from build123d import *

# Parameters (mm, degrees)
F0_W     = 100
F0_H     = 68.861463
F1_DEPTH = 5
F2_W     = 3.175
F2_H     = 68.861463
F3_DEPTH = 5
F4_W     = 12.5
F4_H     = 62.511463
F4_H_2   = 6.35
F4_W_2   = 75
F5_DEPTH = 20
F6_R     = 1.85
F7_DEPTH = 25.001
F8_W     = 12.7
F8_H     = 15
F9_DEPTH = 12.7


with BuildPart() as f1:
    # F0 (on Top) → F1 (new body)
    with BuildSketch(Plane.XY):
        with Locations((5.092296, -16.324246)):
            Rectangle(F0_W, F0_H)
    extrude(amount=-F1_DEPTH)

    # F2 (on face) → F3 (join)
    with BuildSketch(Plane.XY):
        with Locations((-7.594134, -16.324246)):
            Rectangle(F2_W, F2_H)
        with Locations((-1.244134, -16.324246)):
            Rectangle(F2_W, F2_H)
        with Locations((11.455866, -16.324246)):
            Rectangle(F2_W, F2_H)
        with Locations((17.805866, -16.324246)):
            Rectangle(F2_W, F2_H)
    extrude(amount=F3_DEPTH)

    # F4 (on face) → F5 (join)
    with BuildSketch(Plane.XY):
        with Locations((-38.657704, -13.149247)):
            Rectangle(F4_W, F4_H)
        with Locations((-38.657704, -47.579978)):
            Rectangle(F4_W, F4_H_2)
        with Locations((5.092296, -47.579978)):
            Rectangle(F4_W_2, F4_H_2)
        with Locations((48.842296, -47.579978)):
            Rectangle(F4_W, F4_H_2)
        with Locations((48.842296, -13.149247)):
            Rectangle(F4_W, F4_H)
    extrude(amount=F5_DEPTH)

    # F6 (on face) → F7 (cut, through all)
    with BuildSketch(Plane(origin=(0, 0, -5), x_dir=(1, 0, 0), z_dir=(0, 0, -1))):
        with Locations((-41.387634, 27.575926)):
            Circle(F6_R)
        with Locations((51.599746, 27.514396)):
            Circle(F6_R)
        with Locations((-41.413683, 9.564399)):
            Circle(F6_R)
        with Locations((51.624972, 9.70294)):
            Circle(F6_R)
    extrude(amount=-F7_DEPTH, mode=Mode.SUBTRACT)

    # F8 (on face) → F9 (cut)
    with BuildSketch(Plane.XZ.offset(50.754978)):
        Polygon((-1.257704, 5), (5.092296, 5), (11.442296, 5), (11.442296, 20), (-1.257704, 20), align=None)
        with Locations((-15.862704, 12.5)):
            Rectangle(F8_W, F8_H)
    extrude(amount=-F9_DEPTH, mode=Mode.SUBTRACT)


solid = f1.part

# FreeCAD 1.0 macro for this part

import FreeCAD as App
import Part
import Sketcher

V = App.Vector
Q = App.Units.Quantity


def add_polygon(sketch, points):
    """Adds a closed chain of lines whose ends are joined by coincident constraints."""
    first, n = sketch.GeometryCount, len(points)
    for a, b in zip(points, points[1:] + points[:1]):
        sketch.addGeometry(Part.LineSegment(App.Vector(*a, 0), App.Vector(*b, 0)), False)
    for i in range(n):
        sketch.addConstraint(Sketcher.Constraint("Coincident", first + i, 2, first + (i + 1) % n, 1))

doc = App.newDocument("Part")
params = doc.addObject("Spreadsheet::Sheet", "Params")
for row, (alias, value) in enumerate([
    ("sketch1_width", "100 mm"),
    ("pad1_length", "5 mm"),
    ("pad2_length", "5 mm"),
    ("sketch3_width", "100 mm"),
    ("sketch3_width2", "75 mm"),
    ("pad3_length", "20 mm"),
    ("sketch4_diameter", "3.7 mm"),
    ("sketch5_height", "15 mm"),
    ("sketch5_width", "12.7 mm"),
    ("pocket2_length", "12.7 mm"),
], start=1):
    params.set(f"A{row}", alias)
    params.set(f"B{row}", "=" + value)
    params.setAlias(f"B{row}", alias)

body = doc.addObject("PartDesign::Body", "Body")

# Sketch on XY plane
sketch1 = doc.addObject("Sketcher::SketchObject", "Sketch")
body.addObject(sketch1)
sketch1.AttachmentSupport = (doc.XY_Plane, [""])
sketch1.MapMode = "FlatFace"
add_polygon(sketch1, [(-45, 18), (-45, -51), (55, -51), (55, 18)])  # lines 0-3
sketch1.addConstraint([
    Sketcher.Constraint("Vertical", 0),
    Sketcher.Constraint("Horizontal", 1),
    Sketcher.Constraint("Vertical", 2),
    Sketcher.Constraint("Horizontal", 3),
    Sketcher.Constraint("DistanceX", 1, 1, 1, 2, Q("100 mm")),
    Sketcher.Constraint("DistanceY", 0, 2, 0, 1, Q("68.861463 mm")),
    Sketcher.Constraint("DistanceX", 0, 2, -1, 1, Q("44.907704 mm")),
    Sketcher.Constraint("DistanceY", 0, 2, -1, 1, Q("50.754978 mm")),
])
sketch1.setExpression("Constraints[8]", "Params.sketch1_width")
pad1 = doc.addObject("PartDesign::Pad", "Pad")
body.addObject(pad1)
pad1.Profile = sketch1
pad1.setExpression("Length", "Params.pad1_length")
pad1.Reversed = True

# Sketch on XY plane
sketch2 = doc.addObject("Sketcher::SketchObject", "Sketch001")
body.addObject(sketch2)
sketch2.AttachmentSupport = (doc.XY_Plane, [""])
sketch2.MapMode = "FlatFace"
add_polygon(sketch2, [(-9.2, 18.1), (-9.2, -50.8), (-6, -50.8), (-6, 18.1)])  # lines 0-3
add_polygon(sketch2, [(-2.8, 18.1), (-2.8, -50.8), (0.3, -50.8), (0.3, 18.1)])  # lines 4-7
add_polygon(sketch2, [(9.9, 18.1), (9.9, -50.8), (13, -50.8), (13, 18.1)])  # lines 8-11
add_polygon(sketch2, [(16.2, 18.1), (16.2, -50.8), (19.4, -50.8), (19.4, 18.1)])  # lines 12-15
sketch2.addConstraint([
    Sketcher.Constraint("Vertical", 0),
    Sketcher.Constraint("Horizontal", 1),
    Sketcher.Constraint("Vertical", 2),
    Sketcher.Constraint("Horizontal", 3),
    Sketcher.Constraint("Vertical", 4),
    Sketcher.Constraint("Horizontal", 5),
    Sketcher.Constraint("Vertical", 6),
    Sketcher.Constraint("Horizontal", 7),
    Sketcher.Constraint("Vertical", 8),
    Sketcher.Constraint("Horizontal", 9),
    Sketcher.Constraint("Vertical", 10),
    Sketcher.Constraint("Horizontal", 11),
    Sketcher.Constraint("Vertical", 12),
    Sketcher.Constraint("Horizontal", 13),
    Sketcher.Constraint("Vertical", 14),
    Sketcher.Constraint("Horizontal", 15),
    Sketcher.Constraint("Horizontal", 1, 2, 4, 2),
    Sketcher.Constraint("Horizontal", 3, 2, 6, 2),
    Sketcher.Constraint("Horizontal", 5, 2, 8, 2),
    Sketcher.Constraint("Horizontal", 7, 2, 10, 2),
    Sketcher.Constraint("Horizontal", 9, 2, 12, 2),
    Sketcher.Constraint("Horizontal", 11, 2, 14, 2),
    Sketcher.Constraint("Equal", 3, 5),
    Sketcher.Constraint("Equal", 7, 9),
    Sketcher.Constraint("Equal", 11, 13),
    Sketcher.Constraint("DistanceX", 4, 2, 8, 2, Q("12.7 mm")),
    Sketcher.Constraint("DistanceX", 2, 2, 14, 2, Q("25.4 mm")),
    Sketcher.Constraint("DistanceX", 1, 1, 1, 2, Q("3.175 mm")),
    Sketcher.Constraint("DistanceX", 0, 2, 4, 2, Q("6.35 mm")),
    Sketcher.Constraint("DistanceY", 0, 2, 0, 1, Q("68.861463 mm")),
    Sketcher.Constraint("DistanceX", 0, 2, -1, 1, Q("9.181634 mm")),
    Sketcher.Constraint("DistanceY", 0, 2, -1, 1, Q("50.754978 mm")),
])
pad2 = doc.addObject("PartDesign::Pad", "Pad001")
body.addObject(pad2)
pad2.Profile = sketch2
pad2.setExpression("Length", "Params.pad2_length")

# Sketch on XY plane
sketch3 = doc.addObject("Sketcher::SketchObject", "Sketch002")
body.addObject(sketch3)
sketch3.AttachmentSupport = (doc.XY_Plane, [""])
sketch3.MapMode = "FlatFace"
add_polygon(sketch3, [(-45, 18), (-45, -51), (55, -51), (55, 18), (43, 18), (43, -44), (-32, -44), (-32, 18)])  # lines 0-7
sketch3.addConstraint([
    Sketcher.Constraint("Vertical", 0),
    Sketcher.Constraint("Horizontal", 1),
    Sketcher.Constraint("Vertical", 2),
    Sketcher.Constraint("Horizontal", 3),
    Sketcher.Constraint("Vertical", 4),
    Sketcher.Constraint("Horizontal", 5),
    Sketcher.Constraint("Vertical", 6),
    Sketcher.Constraint("Horizontal", 7),
    Sketcher.Constraint("Horizontal", 3, 2, 6, 2),
    Sketcher.Constraint("Equal", 3, 7),
    Sketcher.Constraint("DistanceX", 1, 1, 1, 2, Q("100 mm")),
    Sketcher.Constraint("DistanceX", 5, 2, 5, 1, Q("75 mm")),
    Sketcher.Constraint("DistanceY", 1, 2, 4, 2, Q("6.35 mm")),
    Sketcher.Constraint("DistanceY", 0, 2, 0, 1, Q("68.861463 mm")),
    Sketcher.Constraint("DistanceX", 0, 2, -1, 1, Q("44.907704 mm")),
    Sketcher.Constraint("DistanceY", 0, 2, -1, 1, Q("50.754978 mm")),
])
sketch3.setExpression("Constraints[18]", "Params.sketch3_width")
sketch3.setExpression("Constraints[19]", "Params.sketch3_width2")
pad3 = doc.addObject("PartDesign::Pad", "Pad002")
body.addObject(pad3)
pad3.Profile = sketch3
pad3.setExpression("Length", "Params.pad3_length")

# Sketch on XY plane
sketch4 = doc.addObject("Sketcher::SketchObject", "Sketch003")
body.addObject(sketch4)
sketch4.AttachmentSupport = (doc.XY_Plane, [""])
sketch4.MapMode = "FlatFace"
sketch4.AttachmentOffset = App.Placement(V(0, 0, -5), App.Rotation())
sketch4.addGeometry([
    Part.Circle(V(-41.4, -27.6, 0), V(0, 0, 1), 1.9),
    Part.Circle(V(51.6, -27.5, 0), V(0, 0, 1), 1.9),
    Part.Circle(V(-41.4, -9.6, 0), V(0, 0, 1), 1.9),
    Part.Circle(V(51.6, -9.7, 0), V(0, 0, 1), 1.9),
], False)
sketch4.addConstraint([
    Sketcher.Constraint("Equal", 0, 1),
    Sketcher.Constraint("Equal", 1, 2),
    Sketcher.Constraint("Equal", 2, 3),
    Sketcher.Constraint("Diameter", 0, Q("3.7 mm")),
    Sketcher.Constraint("DistanceY", 2, 3, -1, 1, Q("9.564399 mm")),
    Sketcher.Constraint("DistanceY", 3, 3, -1, 1, Q("9.70294 mm")),
    Sketcher.Constraint("DistanceX", 0, 3, 1, 3, Q("92.98738 mm")),
    Sketcher.Constraint("DistanceY", 0, 3, 1, 3, Q("0.06153 mm")),
    Sketcher.Constraint("DistanceX", 2, 3, 0, 3, Q("0.026049 mm")),
    Sketcher.Constraint("DistanceX", 0, 3, -1, 1, Q("41.387634 mm")),
    Sketcher.Constraint("DistanceY", 0, 3, -1, 1, Q("27.575926 mm")),
    Sketcher.Constraint("DistanceX", -1, 1, 3, 3, Q("51.624972 mm")),
])
sketch4.setExpression("Constraints[3]", "Params.sketch4_diameter")
pocket1 = doc.addObject("PartDesign::Pocket", "Pocket")
body.addObject(pocket1)
pocket1.Profile = sketch4
pocket1.Type = "ThroughAll"
pocket1.Reversed = True

# Sketch on XZ plane
sketch5 = doc.addObject("Sketcher::SketchObject", "Sketch004")
body.addObject(sketch5)
sketch5.AttachmentSupport = (doc.XZ_Plane, [""])
sketch5.MapMode = "FlatFace"
sketch5.AttachmentOffset = App.Placement(V(0, 0, 50.754978), App.Rotation())
add_polygon(sketch5, [(-1, 5), (11, 5), (11, 20), (-1, 20)])  # lines 0-3
add_polygon(sketch5, [(-22, 20), (-22, 5), (-10, 5), (-10, 20)])  # lines 4-7
sketch5.addConstraint([
    Sketcher.Constraint("Horizontal", 0),
    Sketcher.Constraint("Vertical", 1),
    Sketcher.Constraint("Horizontal", 2),
    Sketcher.Constraint("Vertical", 3),
    Sketcher.Constraint("Vertical", 4),
    Sketcher.Constraint("Horizontal", 5),
    Sketcher.Constraint("Vertical", 6),
    Sketcher.Constraint("Horizontal", 7),
    Sketcher.Constraint("Horizontal", 3, 2, 4, 2),
    Sketcher.Constraint("Horizontal", 2, 2, 6, 2),
    Sketcher.Constraint("Equal", 2, 5),
    Sketcher.Constraint("DistanceY", 1, 1, 1, 2, Q("15 mm")),
    Sketcher.Constraint("DistanceX", 0, 1, 0, 2, Q("12.7 mm")),
    Sketcher.Constraint("DistanceY", -1, 1, 0, 2, Q("5 mm")),
    Sketcher.Constraint("DistanceX", 4, 2, 3, 2, Q("20.955 mm")),
    Sketcher.Constraint("DistanceX", -1, 1, 0, 2, Q("11.442296 mm")),
])
sketch5.setExpression("Constraints[19]", "Params.sketch5_height")
sketch5.setExpression("Constraints[20]", "Params.sketch5_width")
pocket2 = doc.addObject("PartDesign::Pocket", "Pocket001")
body.addObject(pocket2)
pocket2.Profile = sketch5
pocket2.setExpression("Length", "Params.pocket2_length")

doc.recompute()
